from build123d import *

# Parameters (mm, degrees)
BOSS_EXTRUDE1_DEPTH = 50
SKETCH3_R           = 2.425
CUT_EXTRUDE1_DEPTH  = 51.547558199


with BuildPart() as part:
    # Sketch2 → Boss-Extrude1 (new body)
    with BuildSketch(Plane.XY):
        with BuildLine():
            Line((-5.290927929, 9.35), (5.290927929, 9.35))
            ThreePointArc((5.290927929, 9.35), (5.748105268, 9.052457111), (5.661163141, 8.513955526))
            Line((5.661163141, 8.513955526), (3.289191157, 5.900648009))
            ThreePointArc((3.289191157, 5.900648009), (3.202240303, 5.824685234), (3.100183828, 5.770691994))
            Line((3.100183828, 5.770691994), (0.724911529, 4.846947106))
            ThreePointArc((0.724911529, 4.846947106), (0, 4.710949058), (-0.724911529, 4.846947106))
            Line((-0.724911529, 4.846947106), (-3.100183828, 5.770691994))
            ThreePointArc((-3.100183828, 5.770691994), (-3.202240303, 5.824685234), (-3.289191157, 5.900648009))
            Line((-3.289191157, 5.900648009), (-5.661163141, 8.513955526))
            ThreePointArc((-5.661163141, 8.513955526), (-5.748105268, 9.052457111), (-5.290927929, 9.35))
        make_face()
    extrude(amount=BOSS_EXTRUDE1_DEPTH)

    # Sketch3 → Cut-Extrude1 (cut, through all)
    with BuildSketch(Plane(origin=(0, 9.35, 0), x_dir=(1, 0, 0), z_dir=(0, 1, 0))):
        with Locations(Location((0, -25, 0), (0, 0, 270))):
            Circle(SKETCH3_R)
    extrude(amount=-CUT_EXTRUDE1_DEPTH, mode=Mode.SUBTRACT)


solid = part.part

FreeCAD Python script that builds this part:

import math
import FreeCAD as App
import Part
import Sketcher
from FreeCAD import Vector
Q = App.Units.Quantity

doc = App.newDocument("Part")
body = doc.addObject("PartDesign::Body", "Body")

# Sketch on XY plane
sketch1 = doc.addObject("Sketcher::SketchObject", "Sketch")
body.addObject(sketch1)
sketch1.AttachmentSupport = (doc.XY_Plane, [""])
sketch1.MapMode = "FlatFace"
sketch1.addGeometry(Part.LineSegment(Vector(5.29, 9.35, 0), Vector(-5.29, 9.35, 0)), False)
sketch1.addGeometry(Part.ArcOfCircle(Part.Circle(Vector(-5.29, 8.85, 0), Vector(0, 0, 1), 0.5), math.radians(90), math.radians(222)), False)
sketch1.addGeometry(Part.LineSegment(Vector(-5.66, 8.51, 0), Vector(-3.29, 5.9, 0)), False)
sketch1.addGeometry(Part.ArcOfCircle(Part.Circle(Vector(-2.92, 6.24, 0), Vector(0, 0, 1), 0.5), math.radians(-138), math.radians(-111)), False)
sketch1.addGeometry(Part.LineSegment(Vector(-3.1, 5.77, 0), Vector(-0.72, 4.85, 0)), False)
sketch1.addGeometry(Part.ArcOfCircle(Part.Circle(Vector(0, 6.71, 0), Vector(0, 0, 1), 2), math.radians(-111), math.radians(-69)), False)
sketch1.addGeometry(Part.LineSegment(Vector(0.72, 4.85, 0), Vector(3.1, 5.77, 0)), False)
sketch1.addGeometry(Part.ArcOfCircle(Part.Circle(Vector(2.92, 6.24, 0), Vector(0, 0, 1), 0.5), math.radians(-69), math.radians(-42)), False)
sketch1.addGeometry(Part.LineSegment(Vector(3.29, 5.9, 0), Vector(5.66, 8.51, 0)), False)
sketch1.addGeometry(Part.ArcOfCircle(Part.Circle(Vector(5.29, 8.85, 0), Vector(0, 0, 1), 0.5), math.radians(-42), math.radians(90)), False)
sketch1.addConstraint(Sketcher.Constraint("Tangent", 0, 2, 1, 1))
sketch1.addConstraint(Sketcher.Constraint("Tangent", 1, 2, 2, 1))
sketch1.addConstraint(Sketcher.Constraint("Tangent", 2, 2, 3, 1))
sketch1.addConstraint(Sketcher.Constraint("Tangent", 3, 2, 4, 1))
sketch1.addConstraint(Sketcher.Constraint("Tangent", 4, 2, 5, 1))
sketch1.addConstraint(Sketcher.Constraint("Tangent", 5, 2, 6, 1))
sketch1.addConstraint(Sketcher.Constraint("Tangent", 6, 2, 7, 1))
sketch1.addConstraint(Sketcher.Constraint("Tangent", 7, 2, 8, 1))
sketch1.addConstraint(Sketcher.Constraint("Tangent", 8, 2, 9, 1))
sketch1.addConstraint(Sketcher.Constraint("Tangent", 9, 2, 0, 1))
sketch1.addConstraint(Sketcher.Constraint("Horizontal", 0))
sketch1.addConstraint(Sketcher.Constraint("Equal", 1, 3))
sketch1.addConstraint(Sketcher.Constraint("Equal", 3, 7))
sketch1.addConstraint(Sketcher.Constraint("Equal", 7, 9))
sketch1.addConstraint(Sketcher.Constraint("Symmetric", 3, 3, 7, 3, -2))
sketch1.addConstraint(Sketcher.Constraint("PointOnObject", 5, 3, -2))
sketch1.addConstraint(Sketcher.Constraint("Horizontal", 2, 2, 7, 2))
sketch1.addConstraint(Sketcher.Constraint("Radius", 5, Q("2 mm")))
sketch1.addConstraint(Sketcher.Constraint("Radius", 1, Q("0.5 mm")))
sketch1.addConstraint(Sketcher.Constraint("DistanceY", -1, 1, 1, 3, Q("8.85 mm")))
sketch1.addConstraint(Sketcher.Constraint("DistanceY", 3, 2, 3, 3, Q("0.466 mm")))
sketch1.addConstraint(Sketcher.Constraint("DistanceY", 2, 2, 5, 3, Q("0.810301 mm")))
sketch1.addConstraint(Sketcher.Constraint("DistanceX", 0, 2, 0, 1, Q("10.581856 mm")))
sketch1.addConstraint(Sketcher.Constraint("DistanceY", -1, 1, 5, 3, Q("6.710949 mm")))
pad1 = doc.addObject("PartDesign::Pad", "Pad")
body.addObject(pad1)
pad1.Profile = sketch1
pad1.Length = 50

# Sketch on XZ plane
sketch2 = doc.addObject("Sketcher::SketchObject", "Sketch001")
body.addObject(sketch2)
sketch2.AttachmentSupport = (doc.XZ_Plane, [""])
sketch2.MapMode = "FlatFace"
sketch2.AttachmentOffset = App.Placement(Vector(0, 0, -9.35), App.Rotation())
sketch2.addGeometry(Part.Circle(Vector(0, 25, 0), Vector(0, 0, 1), 2.4), False)
sketch2.addConstraint(Sketcher.Constraint("PointOnObject", 0, 3, -2))
sketch2.addConstraint(Sketcher.Constraint("Diameter", 0, Q("4.85 mm")))
sketch2.addConstraint(Sketcher.Constraint("DistanceY", -1, 1, 0, 3, Q("25 mm")))
pocket1 = doc.addObject("PartDesign::Pocket", "Pocket")
body.addObject(pocket1)
pocket1.Profile = sketch2
pocket1.Type = "ThroughAll"
pocket1.Reversed = True

doc.recompute()
